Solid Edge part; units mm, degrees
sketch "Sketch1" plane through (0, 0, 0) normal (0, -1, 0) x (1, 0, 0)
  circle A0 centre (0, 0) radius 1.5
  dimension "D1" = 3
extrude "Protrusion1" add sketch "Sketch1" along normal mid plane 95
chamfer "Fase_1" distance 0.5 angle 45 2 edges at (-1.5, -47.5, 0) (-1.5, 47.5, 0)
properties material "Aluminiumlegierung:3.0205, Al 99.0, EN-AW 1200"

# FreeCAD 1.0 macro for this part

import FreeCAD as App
import Part
import Sketcher


def edges_at(feature, points):
    """Names of the edges that pass closest to the given points."""
    edges = feature.Shape.Edges
    near = lambda p: min(range(len(edges)), key=lambda i: edges[i].distToShape(Part.Vertex(*p))[0])
    return sorted({f"Edge{near(p) + 1}" for p in points})

doc = App.newDocument("Part")
body = doc.addObject("PartDesign::Body", "Body")

# Sketch on XZ plane
sketch1 = body.newObject("Sketcher::SketchObject", "Sketch")
sketch1.AttachmentSupport = (doc.getObject("XZ_Plane"), [""])
sketch1.MapMode = "FlatFace"
sketch1.addGeometry(Part.Circle(App.Vector(0, 0, 0), App.Vector(0, 0, 1), 1.5), False)
sketch1.addConstraint([
    Sketcher.Constraint("Coincident", 0, 3, -1, 1),
    Sketcher.Constraint("Diameter", 0, 3.0),
])
pad1 = body.newObject("PartDesign::Pad", "Pad")
pad1.Profile = sketch1
pad1.Length = 95
pad1.Midplane = True
doc.recompute()

chamfer = body.newObject("PartDesign::Chamfer", "Chamfer")
chamfer.Base = (pad1, edges_at(pad1, [(-1.5, -47.5, 0), (-1.5, 47.5, 0)]))
chamfer.Size = 0.5

doc.recompute()
